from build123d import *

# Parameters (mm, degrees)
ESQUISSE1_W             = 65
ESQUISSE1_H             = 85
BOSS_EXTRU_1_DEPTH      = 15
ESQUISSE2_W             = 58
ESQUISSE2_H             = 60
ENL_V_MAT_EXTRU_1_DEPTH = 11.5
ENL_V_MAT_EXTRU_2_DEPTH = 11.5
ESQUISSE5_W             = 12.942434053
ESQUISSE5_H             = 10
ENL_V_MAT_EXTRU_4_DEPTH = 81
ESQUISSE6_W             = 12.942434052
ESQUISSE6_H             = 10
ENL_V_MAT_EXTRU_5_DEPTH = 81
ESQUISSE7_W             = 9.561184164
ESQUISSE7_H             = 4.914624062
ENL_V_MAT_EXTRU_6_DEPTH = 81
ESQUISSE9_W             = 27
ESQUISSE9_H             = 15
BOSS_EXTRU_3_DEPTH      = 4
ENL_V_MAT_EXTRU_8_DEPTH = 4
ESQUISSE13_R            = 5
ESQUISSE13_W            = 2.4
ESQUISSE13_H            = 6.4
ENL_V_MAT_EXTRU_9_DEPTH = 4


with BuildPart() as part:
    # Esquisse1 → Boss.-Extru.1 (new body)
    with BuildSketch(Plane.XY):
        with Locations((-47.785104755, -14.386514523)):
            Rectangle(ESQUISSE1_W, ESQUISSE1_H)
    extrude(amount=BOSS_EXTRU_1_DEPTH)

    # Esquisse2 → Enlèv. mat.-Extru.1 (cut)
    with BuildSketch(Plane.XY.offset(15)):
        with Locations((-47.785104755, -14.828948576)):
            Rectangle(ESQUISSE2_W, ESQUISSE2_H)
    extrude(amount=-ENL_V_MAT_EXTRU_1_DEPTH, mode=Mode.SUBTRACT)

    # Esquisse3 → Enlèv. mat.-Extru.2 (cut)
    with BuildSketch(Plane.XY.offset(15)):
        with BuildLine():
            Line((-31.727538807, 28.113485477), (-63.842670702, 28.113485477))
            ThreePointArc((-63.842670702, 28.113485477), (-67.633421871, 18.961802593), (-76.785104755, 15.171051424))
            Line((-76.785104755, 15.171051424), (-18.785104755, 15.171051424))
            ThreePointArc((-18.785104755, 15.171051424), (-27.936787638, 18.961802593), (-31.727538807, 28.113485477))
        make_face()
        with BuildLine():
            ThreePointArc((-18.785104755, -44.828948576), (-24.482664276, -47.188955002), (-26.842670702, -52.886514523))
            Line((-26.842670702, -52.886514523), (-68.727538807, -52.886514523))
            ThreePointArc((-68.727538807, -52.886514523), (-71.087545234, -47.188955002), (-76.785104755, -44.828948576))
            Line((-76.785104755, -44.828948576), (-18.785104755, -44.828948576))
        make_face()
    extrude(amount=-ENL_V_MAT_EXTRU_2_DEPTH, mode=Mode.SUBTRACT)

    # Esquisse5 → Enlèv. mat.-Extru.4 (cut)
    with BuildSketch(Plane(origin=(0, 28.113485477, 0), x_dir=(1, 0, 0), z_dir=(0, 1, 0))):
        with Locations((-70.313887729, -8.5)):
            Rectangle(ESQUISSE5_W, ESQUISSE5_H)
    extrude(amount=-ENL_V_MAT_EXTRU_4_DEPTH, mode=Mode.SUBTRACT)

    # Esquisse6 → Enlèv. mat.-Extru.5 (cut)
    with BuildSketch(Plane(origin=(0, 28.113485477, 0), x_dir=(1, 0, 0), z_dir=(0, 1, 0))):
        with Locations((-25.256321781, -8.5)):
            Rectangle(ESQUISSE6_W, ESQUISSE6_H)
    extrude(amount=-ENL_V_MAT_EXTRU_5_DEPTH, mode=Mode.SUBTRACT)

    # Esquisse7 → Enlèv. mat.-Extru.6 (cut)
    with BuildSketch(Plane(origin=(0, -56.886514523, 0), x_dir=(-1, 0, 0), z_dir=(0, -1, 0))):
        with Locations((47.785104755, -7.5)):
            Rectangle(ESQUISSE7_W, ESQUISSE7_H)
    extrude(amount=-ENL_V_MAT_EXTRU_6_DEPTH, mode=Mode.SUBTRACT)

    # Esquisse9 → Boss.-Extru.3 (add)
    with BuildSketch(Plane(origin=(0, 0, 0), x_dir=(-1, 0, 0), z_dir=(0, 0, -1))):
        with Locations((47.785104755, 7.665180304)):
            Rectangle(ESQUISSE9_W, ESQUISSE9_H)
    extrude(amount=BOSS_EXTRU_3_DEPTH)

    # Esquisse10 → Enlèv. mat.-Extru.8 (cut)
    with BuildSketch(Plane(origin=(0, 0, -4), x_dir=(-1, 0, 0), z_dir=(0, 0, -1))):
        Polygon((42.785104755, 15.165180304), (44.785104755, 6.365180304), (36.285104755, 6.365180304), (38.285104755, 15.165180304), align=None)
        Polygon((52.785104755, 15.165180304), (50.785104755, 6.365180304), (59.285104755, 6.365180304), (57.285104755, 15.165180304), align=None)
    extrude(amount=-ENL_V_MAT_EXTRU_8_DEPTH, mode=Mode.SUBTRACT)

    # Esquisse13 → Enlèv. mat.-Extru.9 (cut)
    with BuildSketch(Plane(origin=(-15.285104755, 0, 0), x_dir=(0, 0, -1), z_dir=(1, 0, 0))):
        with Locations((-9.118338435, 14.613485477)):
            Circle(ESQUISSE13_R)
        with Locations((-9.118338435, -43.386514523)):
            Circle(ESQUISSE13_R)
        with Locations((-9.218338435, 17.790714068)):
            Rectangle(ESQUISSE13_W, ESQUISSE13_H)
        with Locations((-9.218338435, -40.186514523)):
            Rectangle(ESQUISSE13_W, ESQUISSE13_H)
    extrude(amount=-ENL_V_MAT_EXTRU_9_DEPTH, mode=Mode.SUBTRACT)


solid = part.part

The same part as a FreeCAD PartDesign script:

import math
import FreeCAD as App
import Part
import Sketcher
from FreeCAD import Vector
Q = App.Units.Quantity

doc = App.newDocument("Part")
body = doc.addObject("PartDesign::Body", "Body")

# Sketch on XY plane
sketch1 = doc.addObject("Sketcher::SketchObject", "Sketch")
body.addObject(sketch1)
sketch1.AttachmentSupport = (doc.XY_Plane, [""])
sketch1.MapMode = "FlatFace"
sketch1.addGeometry([
    Part.LineSegment(Vector(-80.285105, 28.113485, 0), Vector(-80.285105, -56.886515, 0)),
    Part.LineSegment(Vector(-80.285105, -56.886515, 0), Vector(-15.285105, -56.886515, 0)),
    Part.LineSegment(Vector(-15.285105, -56.886515, 0), Vector(-15.285105, 28.113485, 0)),
    Part.LineSegment(Vector(-15.285105, 28.113485, 0), Vector(-80.285105, 28.113485, 0)),
], False)
sketch1.addConstraint([
    Sketcher.Constraint("Coincident", 0, 2, 1, 1),
    Sketcher.Constraint("Coincident", 1, 2, 2, 1),
    Sketcher.Constraint("Coincident", 2, 2, 3, 1),
    Sketcher.Constraint("Coincident", 3, 2, 0, 1),
    Sketcher.Constraint("Vertical", 0),
    Sketcher.Constraint("Horizontal", 1),
    Sketcher.Constraint("Vertical", 2),
    Sketcher.Constraint("Horizontal", 3),
    Sketcher.Constraint("DistanceX", 1, 1, 1, 2, Q("65 mm")),
    Sketcher.Constraint("DistanceY", 0, 2, 0, 1, Q("85 mm")),
    Sketcher.Constraint("DistanceX", 0, 2, -1, 1, Q("80.285105 mm")),
    Sketcher.Constraint("DistanceY", 0, 2, -1, 1, Q("56.886515 mm")),
])
pad1 = doc.addObject("PartDesign::Pad", "Pad")
body.addObject(pad1)
pad1.Profile = sketch1
pad1.Length = 15

# Sketch on XY plane
sketch2 = doc.addObject("Sketcher::SketchObject", "Sketch001")
body.addObject(sketch2)
sketch2.AttachmentSupport = (doc.XY_Plane, [""])
sketch2.MapMode = "FlatFace"
sketch2.AttachmentOffset = App.Placement(Vector(0, 0, 15), App.Rotation())
sketch2.addGeometry([
    Part.LineSegment(Vector(-76.785105, 15.171051, 0), Vector(-76.785105, -44.828949, 0)),
    Part.LineSegment(Vector(-76.785105, -44.828949, 0), Vector(-18.785105, -44.828949, 0)),
    Part.LineSegment(Vector(-18.785105, -44.828949, 0), Vector(-18.785105, 15.171051, 0)),
    Part.LineSegment(Vector(-18.785105, 15.171051, 0), Vector(-76.785105, 15.171051, 0)),
], False)
sketch2.addConstraint([
    Sketcher.Constraint("Coincident", 0, 2, 1, 1),
    Sketcher.Constraint("Coincident", 1, 2, 2, 1),
    Sketcher.Constraint("Coincident", 2, 2, 3, 1),
    Sketcher.Constraint("Coincident", 3, 2, 0, 1),
    Sketcher.Constraint("Vertical", 0),
    Sketcher.Constraint("Horizontal", 1),
    Sketcher.Constraint("Vertical", 2),
    Sketcher.Constraint("Horizontal", 3),
    Sketcher.Constraint("DistanceX", 1, 1, 1, 2, Q("58 mm")),
    Sketcher.Constraint("DistanceY", 0, 2, 0, 1, Q("60 mm")),
    Sketcher.Constraint("DistanceY", 0, 2, -1, 1, Q("44.828949 mm")),
    Sketcher.Constraint("DistanceX", 0, 2, -1, 1, Q("76.785105 mm")),
])
pocket1 = doc.addObject("PartDesign::Pocket", "Pocket")
body.addObject(pocket1)
pocket1.Profile = sketch2
pocket1.Length = 11.5

# Sketch on XY plane
sketch3 = doc.addObject("Sketcher::SketchObject", "Sketch002")
body.addObject(sketch3)
sketch3.AttachmentSupport = (doc.XY_Plane, [""])
sketch3.MapMode = "FlatFace"
sketch3.AttachmentOffset = App.Placement(Vector(0, 0, 15), App.Rotation())
sketch3.addGeometry([
    Part.LineSegment(Vector(-31.727539, 28.113485, 0), Vector(-63.842671, 28.113485, 0)),  # 0
    Part.ArcOfCircle(Part.Circle(Vector(-76.785105, 28.113485, 0), Vector(0, 0, 1), 12.942434), math.radians(-90), math.radians(0)),  # 1
    Part.LineSegment(Vector(-76.785105, 15.171051, 0), Vector(-18.785105, 15.171051, 0)),  # 2
    Part.ArcOfCircle(Part.Circle(Vector(-18.785105, 28.113485, 0), Vector(0, 0, 1), 12.942434), math.radians(180), math.radians(270)),  # 3
    Part.ArcOfCircle(Part.Circle(Vector(-18.785105, -52.886515, 0), Vector(0, 0, 1), 8.057566), math.radians(90), math.radians(180)),  # 4
    Part.LineSegment(Vector(-18.785105, -44.828949, 0), Vector(-76.785105, -44.828949, 0)),  # 5
    Part.ArcOfCircle(Part.Circle(Vector(-76.785105, -52.886515, 0), Vector(0, 0, 1), 8.057566), math.radians(0), math.radians(90)),  # 6
    Part.LineSegment(Vector(-68.727539, -52.886515, 0), Vector(-26.842671, -52.886515, 0)),  # 7
], False)
sketch3.addConstraint([
    Sketcher.Constraint("Coincident", 0, 2, 1, 2),
    Sketcher.Constraint("Tangent", 1, 1, 2, 1),
    Sketcher.Constraint("Tangent", 2, 2, 3, 2),
    Sketcher.Constraint("Coincident", 3, 1, 0, 1),
    Sketcher.Constraint("Tangent", 4, 1, 5, 1),
    Sketcher.Constraint("Tangent", 5, 2, 6, 2),
    Sketcher.Constraint("Coincident", 6, 1, 7, 1),
    Sketcher.Constraint("Coincident", 7, 2, 4, 2),
    Sketcher.Constraint("Horizontal", 0),
    Sketcher.Constraint("Horizontal", 2),
    Sketcher.Constraint("Horizontal", 5),
    Sketcher.Constraint("Horizontal", 7),
    Sketcher.Constraint("Equal", 1, 3),
    Sketcher.Constraint("Equal", 4, 6),
    Sketcher.Constraint("Horizontal", 3, 3, 0, 2),
    Sketcher.Constraint("Horizontal", 4, 3, 6, 1),
    Sketcher.Constraint("Vertical", 3, 3, 4, 3),
    Sketcher.Constraint("Vertical", 1, 3, 6, 3),
    Sketcher.Constraint("DistanceX", 2, 1, 2, 2, Q("58 mm")),
    Sketcher.Constraint("DistanceY", 4, 3, 3, 3, Q("81 mm")),
    Sketcher.Constraint("DistanceY", 4, 1, 2, 2, Q("60 mm")),
    Sketcher.Constraint("Radius", 1, Q("12.942434 mm")),
    Sketcher.Constraint("DistanceX", 0, 2, -1, 1, Q("63.842671 mm")),
    Sketcher.Constraint("DistanceY", -1, 1, 1, 1, Q("15.171051 mm")),
])
pocket2 = doc.addObject("PartDesign::Pocket", "Pocket001")
body.addObject(pocket2)
pocket2.Profile = sketch3
pocket2.Length = 11.5

# Sketch on XZ plane
sketch4 = doc.addObject("Sketcher::SketchObject", "Sketch003")
body.addObject(sketch4)
sketch4.AttachmentSupport = (doc.XZ_Plane, [""])
sketch4.MapMode = "FlatFace"
sketch4.AttachmentOffset = App.Placement(Vector(0, 0, -28.113485), App.Rotation())
sketch4.addGeometry([
    Part.LineSegment(Vector(-76.785105, 3.5, 0), Vector(-76.785105, 13.5, 0)),
    Part.LineSegment(Vector(-76.785105, 13.5, 0), Vector(-63.842671, 13.5, 0)),
    Part.LineSegment(Vector(-63.842671, 13.5, 0), Vector(-63.842671, 3.5, 0)),
    Part.LineSegment(Vector(-63.842671, 3.5, 0), Vector(-76.785105, 3.5, 0)),
], False)
sketch4.addConstraint([
    Sketcher.Constraint("Coincident", 0, 2, 1, 1),
    Sketcher.Constraint("Coincident", 1, 2, 2, 1),
    Sketcher.Constraint("Coincident", 2, 2, 3, 1),
    Sketcher.Constraint("Coincident", 3, 2, 0, 1),
    Sketcher.Constraint("Vertical", 0),
    Sketcher.Constraint("Horizontal", 1),
    Sketcher.Constraint("Vertical", 2),
    Sketcher.Constraint("Horizontal", 3),
    Sketcher.Constraint("DistanceY", 0, 1, 0, 2, Q("10 mm")),
    Sketcher.Constraint("DistanceY", -1, 1, 0, 2, Q("13.5 mm")),
    Sketcher.Constraint("DistanceX", 1, 1, 1, 2, Q("12.942434 mm")),
    Sketcher.Constraint("DistanceX", 1, 2, -1, 1, Q("63.842671 mm")),
])
pocket3 = doc.addObject("PartDesign::Pocket", "Pocket002")
body.addObject(pocket3)
pocket3.Profile = sketch4
pocket3.Length = 81
pocket3.Reversed = True

# Sketch on XZ plane
sketch5 = doc.addObject("Sketcher::SketchObject", "Sketch004")
body.addObject(sketch5)
sketch5.AttachmentSupport = (doc.XZ_Plane, [""])
sketch5.MapMode = "FlatFace"
sketch5.AttachmentOffset = App.Placement(Vector(0, 0, -28.113485), App.Rotation())
sketch5.addGeometry([
    Part.LineSegment(Vector(-31.727539, 3.5, 0), Vector(-31.727539, 13.5, 0)),
    Part.LineSegment(Vector(-31.727539, 13.5, 0), Vector(-18.785105, 13.5, 0)),
    Part.LineSegment(Vector(-18.785105, 13.5, 0), Vector(-18.785105, 3.5, 0)),
    Part.LineSegment(Vector(-18.785105, 3.5, 0), Vector(-31.727539, 3.5, 0)),
], False)
sketch5.addConstraint([
    Sketcher.Constraint("Coincident", 0, 2, 1, 1),
    Sketcher.Constraint("Coincident", 1, 2, 2, 1),
    Sketcher.Constraint("Coincident", 2, 2, 3, 1),
    Sketcher.Constraint("Coincident", 3, 2, 0, 1),
    Sketcher.Constraint("Vertical", 0),
    Sketcher.Constraint("Horizontal", 1),
    Sketcher.Constraint("Vertical", 2),
    Sketcher.Constraint("Horizontal", 3),
    Sketcher.Constraint("DistanceY", 0, 1, 0, 2, Q("10 mm")),
    Sketcher.Constraint("DistanceY", -1, 1, 0, 2, Q("13.5 mm")),
    Sketcher.Constraint("DistanceX", 1, 1, 1, 2, Q("12.942434 mm")),
    Sketcher.Constraint("DistanceX", 0, 2, -1, 1, Q("31.727539 mm")),
])
pocket4 = doc.addObject("PartDesign::Pocket", "Pocket003")
body.addObject(pocket4)
pocket4.Profile = sketch5
pocket4.Length = 81
pocket4.Reversed = True

# Sketch on XZ plane
sketch6 = doc.addObject("Sketcher::SketchObject", "Sketch005")
body.addObject(sketch6)
sketch6.AttachmentSupport = (doc.XZ_Plane, [""])
sketch6.MapMode = "FlatFace"
sketch6.AttachmentOffset = App.Placement(Vector(0, 0, 56.886515), App.Rotation())
sketch6.addGeometry([
    Part.LineSegment(Vector(-43.004513, 5.042688, 0), Vector(-43.004513, 9.957312, 0)),
    Part.LineSegment(Vector(-43.004513, 9.957312, 0), Vector(-52.565697, 9.957312, 0)),
    Part.LineSegment(Vector(-52.565697, 9.957312, 0), Vector(-52.565697, 5.042688, 0)),
    Part.LineSegment(Vector(-52.565697, 5.042688, 0), Vector(-43.004513, 5.042688, 0)),
], False)
sketch6.addConstraint([
    Sketcher.Constraint("Coincident", 0, 2, 1, 1),
    Sketcher.Constraint("Coincident", 1, 2, 2, 1),
    Sketcher.Constraint("Coincident", 2, 2, 3, 1),
    Sketcher.Constraint("Coincident", 3, 2, 0, 1),
    Sketcher.Constraint("Vertical", 0),
    Sketcher.Constraint("Horizontal", 1),
    Sketcher.Constraint("Vertical", 2),
    Sketcher.Constraint("Horizontal", 3),
    Sketcher.Constraint("DistanceX", 1, 2, 1, 1, Q("9.561184 mm")),
    Sketcher.Constraint("DistanceY", 0, 1, 0, 2, Q("4.914624 mm")),
    Sketcher.Constraint("DistanceX", 0, 2, -1, 1, Q("43.004513 mm")),
    Sketcher.Constraint("DistanceY", -1, 1, 0, 2, Q("9.957312 mm")),
])
pocket5 = doc.addObject("PartDesign::Pocket", "Pocket004")
body.addObject(pocket5)
pocket5.Profile = sketch6
pocket5.Length = 81

# Sketch on XY plane
sketch7 = doc.addObject("Sketcher::SketchObject", "Sketch006")
body.addObject(sketch7)
sketch7.AttachmentSupport = (doc.XY_Plane, [""])
sketch7.MapMode = "FlatFace"
sketch7.addGeometry([
    Part.LineSegment(Vector(-34.285105, 15.16518, 0), Vector(-34.285105, 0.16518, 0)),
    Part.LineSegment(Vector(-34.285105, 0.16518, 0), Vector(-61.285105, 0.16518, 0)),
    Part.LineSegment(Vector(-61.285105, 0.16518, 0), Vector(-61.285105, 15.16518, 0)),
    Part.LineSegment(Vector(-61.285105, 15.16518, 0), Vector(-34.285105, 15.16518, 0)),
], False)
sketch7.addConstraint([
    Sketcher.Constraint("Coincident", 0, 2, 1, 1),
    Sketcher.Constraint("Coincident", 1, 2, 2, 1),
    Sketcher.Constraint("Coincident", 2, 2, 3, 1),
    Sketcher.Constraint("Coincident", 3, 2, 0, 1),
    Sketcher.Constraint("Vertical", 0),
    Sketcher.Constraint("Horizontal", 1),
    Sketcher.Constraint("Vertical", 2),
    Sketcher.Constraint("Horizontal", 3),
    Sketcher.Constraint("DistanceX", 1, 2, 1, 1, Q("27 mm")),
    Sketcher.Constraint("DistanceY", 0, 2, 0, 1, Q("15 mm")),
    Sketcher.Constraint("DistanceY", -1, 1, 0, 2, Q("0.16518 mm")),
    Sketcher.Constraint("DistanceX", 0, 2, -1, 1, Q("34.285105 mm")),
])
pad2 = doc.addObject("PartDesign::Pad", "Pad001")
body.addObject(pad2)
pad2.Profile = sketch7
pad2.Length = 4
pad2.Reversed = True

# Sketch on XY plane
sketch8 = doc.addObject("Sketcher::SketchObject", "Sketch007")
body.addObject(sketch8)
sketch8.AttachmentSupport = (doc.XY_Plane, [""])
sketch8.MapMode = "FlatFace"
sketch8.AttachmentOffset = App.Placement(Vector(0, 0, -4), App.Rotation())
sketch8.addGeometry([
    Part.LineSegment(Vector(-44.785105, 6.36518, 0), Vector(-42.785105, 15.16518, 0)),  # 0
    Part.LineSegment(Vector(-42.785105, 15.16518, 0), Vector(-38.285105, 15.16518, 0)),  # 1
    Part.LineSegment(Vector(-38.285105, 15.16518, 0), Vector(-36.285105, 6.36518, 0)),  # 2
    Part.LineSegment(Vector(-36.285105, 6.36518, 0), Vector(-44.785105, 6.36518, 0)),  # 3
    Part.LineSegment(Vector(-52.785105, 15.16518, 0), Vector(-50.785105, 6.36518, 0)),  # 4
    Part.LineSegment(Vector(-50.785105, 6.36518, 0), Vector(-59.285105, 6.36518, 0)),  # 5
    Part.LineSegment(Vector(-59.285105, 6.36518, 0), Vector(-57.285105, 15.16518, 0)),  # 6
    Part.LineSegment(Vector(-57.285105, 15.16518, 0), Vector(-52.785105, 15.16518, 0)),  # 7
], False)
sketch8.addConstraint([
    Sketcher.Constraint("Coincident", 0, 2, 1, 1),
    Sketcher.Constraint("Coincident", 1, 2, 2, 1),
    Sketcher.Constraint("Coincident", 2, 2, 3, 1),
    Sketcher.Constraint("Coincident", 3, 2, 0, 1),
    Sketcher.Constraint("Coincident", 4, 2, 5, 1),
    Sketcher.Constraint("Coincident", 5, 2, 6, 1),
    Sketcher.Constraint("Coincident", 6, 2, 7, 1),
    Sketcher.Constraint("Coincident", 7, 2, 4, 1),
    Sketcher.Constraint("Horizontal", 1),
    Sketcher.Constraint("Horizontal", 3),
    Sketcher.Constraint("Horizontal", 5),
    Sketcher.Constraint("Horizontal", 7),
    Sketcher.Constraint("Parallel", 2, 4),
    Sketcher.Constraint("Parallel", 0, 6),
    Sketcher.Constraint("Horizontal", 3, 2, 4, 2),
    Sketcher.Constraint("Horizontal", 1, 2, 6, 2),
    Sketcher.Constraint("Equal", 3, 5),
    Sketcher.Constraint("Equal", 0, 2),
    Sketcher.Constraint("DistanceX", 1, 1, 1, 2, Q("4.5 mm")),
    Sketcher.Constraint("DistanceX", 3, 2, 3, 1, Q("8.5 mm")),
    Sketcher.Constraint("DistanceX", 4, 2, 3, 2, Q("6 mm")),
    Sketcher.Constraint("DistanceY", 2, 2, 1, 2, Q("8.8 mm")),
    Sketcher.Constraint("DistanceY", -1, 1, 0, 2, Q("15.16518 mm")),
    Sketcher.Constraint("DistanceX", 0, 2, -1, 1, Q("42.785105 mm")),
])
pocket6 = doc.addObject("PartDesign::Pocket", "Pocket005")
body.addObject(pocket6)
pocket6.Profile = sketch8
pocket6.Length = 4
pocket6.Reversed = True

# Sketch on YZ plane
sketch9 = doc.addObject("Sketcher::SketchObject", "Sketch008")
body.addObject(sketch9)
sketch9.AttachmentSupport = (doc.YZ_Plane, [""])
sketch9.MapMode = "FlatFace"
sketch9.AttachmentOffset = App.Placement(Vector(0, 0, -15.285105), App.Rotation())
sketch9.addGeometry([
    Part.ArcOfCircle(Part.Circle(Vector(14.613485, 9.118338, 0), Vector(0, 0, 1), 5), math.radians(15.070062), math.radians(347.290967)),  # 0
    Part.LineSegment(Vector(19.490985, 8.018338, 0), Vector(20.990714, 8.018338, 0)),  # 1
    Part.LineSegment(Vector(20.990714, 8.018338, 0), Vector(20.990714, 10.418338, 0)),  # 2
    Part.LineSegment(Vector(20.990714, 10.418338, 0), Vector(19.441529, 10.418338, 0)),  # 3
    Part.ArcOfCircle(Part.Circle(Vector(-43.386515, 9.118338, 0), Vector(0, 0, 1), 5), math.radians(15.070062), math.radians(347.290967)),  # 4
    Part.LineSegment(Vector(-38.509015, 8.018338, 0), Vector(-36.986515, 8.018338, 0)),  # 5
    Part.LineSegment(Vector(-36.986515, 8.018338, 0), Vector(-36.986515, 10.418338, 0)),  # 6
    Part.LineSegment(Vector(-36.986515, 10.418338, 0), Vector(-38.558471, 10.418338, 0)),  # 7
], False)
sketch9.addConstraint([
    Sketcher.Constraint("Coincident", 0, 2, 1, 1),
    Sketcher.Constraint("Coincident", 1, 2, 2, 1),
    Sketcher.Constraint("Coincident", 2, 2, 3, 1),
    Sketcher.Constraint("Coincident", 3, 2, 0, 1),
    Sketcher.Constraint("Coincident", 4, 2, 5, 1),
    Sketcher.Constraint("Coincident", 5, 2, 6, 1),
    Sketcher.Constraint("Coincident", 6, 2, 7, 1),
    Sketcher.Constraint("Coincident", 7, 2, 4, 1),
    Sketcher.Constraint("Horizontal", 1),
    Sketcher.Constraint("Vertical", 2),
    Sketcher.Constraint("Horizontal", 3),
    Sketcher.Constraint("Horizontal", 5),
    Sketcher.Constraint("Vertical", 6),
    Sketcher.Constraint("Horizontal", 7),
    Sketcher.Constraint("Equal", 0, 4),
    Sketcher.Constraint("Horizontal", 0, 3, 4, 3),
    Sketcher.Constraint("Horizontal", 1, 2, 4, 2),
    Sketcher.Constraint("Horizontal", 3, 2, 6, 2),
    Sketcher.Constraint("Radius", 0, Q("5 mm")),
    Sketcher.Constraint("DistanceY", 2, 1, 2, 2, Q("2.4 mm")),
    Sketcher.Constraint("DistanceX", 4, 3, 0, 3, Q("58 mm")),
    Sketcher.Constraint("DistanceY", 0, 2, 0, 3, Q("1.1 mm")),
    Sketcher.Constraint("DistanceX", 4, 3, 5, 2, Q("6.4 mm")),
    Sketcher.Constraint("DistanceX", 1, 1, 1, 2, Q("1.499729 mm")),
    Sketcher.Constraint("DistanceY", -1, 1, 0, 3, Q("9.118338 mm")),
    Sketcher.Constraint("DistanceX", -1, 1, 3, 2, Q("19.441529 mm")),
])
pocket7 = doc.addObject("PartDesign::Pocket", "Pocket006")
body.addObject(pocket7)
pocket7.Profile = sketch9
pocket7.Length = 4

doc.recompute()
